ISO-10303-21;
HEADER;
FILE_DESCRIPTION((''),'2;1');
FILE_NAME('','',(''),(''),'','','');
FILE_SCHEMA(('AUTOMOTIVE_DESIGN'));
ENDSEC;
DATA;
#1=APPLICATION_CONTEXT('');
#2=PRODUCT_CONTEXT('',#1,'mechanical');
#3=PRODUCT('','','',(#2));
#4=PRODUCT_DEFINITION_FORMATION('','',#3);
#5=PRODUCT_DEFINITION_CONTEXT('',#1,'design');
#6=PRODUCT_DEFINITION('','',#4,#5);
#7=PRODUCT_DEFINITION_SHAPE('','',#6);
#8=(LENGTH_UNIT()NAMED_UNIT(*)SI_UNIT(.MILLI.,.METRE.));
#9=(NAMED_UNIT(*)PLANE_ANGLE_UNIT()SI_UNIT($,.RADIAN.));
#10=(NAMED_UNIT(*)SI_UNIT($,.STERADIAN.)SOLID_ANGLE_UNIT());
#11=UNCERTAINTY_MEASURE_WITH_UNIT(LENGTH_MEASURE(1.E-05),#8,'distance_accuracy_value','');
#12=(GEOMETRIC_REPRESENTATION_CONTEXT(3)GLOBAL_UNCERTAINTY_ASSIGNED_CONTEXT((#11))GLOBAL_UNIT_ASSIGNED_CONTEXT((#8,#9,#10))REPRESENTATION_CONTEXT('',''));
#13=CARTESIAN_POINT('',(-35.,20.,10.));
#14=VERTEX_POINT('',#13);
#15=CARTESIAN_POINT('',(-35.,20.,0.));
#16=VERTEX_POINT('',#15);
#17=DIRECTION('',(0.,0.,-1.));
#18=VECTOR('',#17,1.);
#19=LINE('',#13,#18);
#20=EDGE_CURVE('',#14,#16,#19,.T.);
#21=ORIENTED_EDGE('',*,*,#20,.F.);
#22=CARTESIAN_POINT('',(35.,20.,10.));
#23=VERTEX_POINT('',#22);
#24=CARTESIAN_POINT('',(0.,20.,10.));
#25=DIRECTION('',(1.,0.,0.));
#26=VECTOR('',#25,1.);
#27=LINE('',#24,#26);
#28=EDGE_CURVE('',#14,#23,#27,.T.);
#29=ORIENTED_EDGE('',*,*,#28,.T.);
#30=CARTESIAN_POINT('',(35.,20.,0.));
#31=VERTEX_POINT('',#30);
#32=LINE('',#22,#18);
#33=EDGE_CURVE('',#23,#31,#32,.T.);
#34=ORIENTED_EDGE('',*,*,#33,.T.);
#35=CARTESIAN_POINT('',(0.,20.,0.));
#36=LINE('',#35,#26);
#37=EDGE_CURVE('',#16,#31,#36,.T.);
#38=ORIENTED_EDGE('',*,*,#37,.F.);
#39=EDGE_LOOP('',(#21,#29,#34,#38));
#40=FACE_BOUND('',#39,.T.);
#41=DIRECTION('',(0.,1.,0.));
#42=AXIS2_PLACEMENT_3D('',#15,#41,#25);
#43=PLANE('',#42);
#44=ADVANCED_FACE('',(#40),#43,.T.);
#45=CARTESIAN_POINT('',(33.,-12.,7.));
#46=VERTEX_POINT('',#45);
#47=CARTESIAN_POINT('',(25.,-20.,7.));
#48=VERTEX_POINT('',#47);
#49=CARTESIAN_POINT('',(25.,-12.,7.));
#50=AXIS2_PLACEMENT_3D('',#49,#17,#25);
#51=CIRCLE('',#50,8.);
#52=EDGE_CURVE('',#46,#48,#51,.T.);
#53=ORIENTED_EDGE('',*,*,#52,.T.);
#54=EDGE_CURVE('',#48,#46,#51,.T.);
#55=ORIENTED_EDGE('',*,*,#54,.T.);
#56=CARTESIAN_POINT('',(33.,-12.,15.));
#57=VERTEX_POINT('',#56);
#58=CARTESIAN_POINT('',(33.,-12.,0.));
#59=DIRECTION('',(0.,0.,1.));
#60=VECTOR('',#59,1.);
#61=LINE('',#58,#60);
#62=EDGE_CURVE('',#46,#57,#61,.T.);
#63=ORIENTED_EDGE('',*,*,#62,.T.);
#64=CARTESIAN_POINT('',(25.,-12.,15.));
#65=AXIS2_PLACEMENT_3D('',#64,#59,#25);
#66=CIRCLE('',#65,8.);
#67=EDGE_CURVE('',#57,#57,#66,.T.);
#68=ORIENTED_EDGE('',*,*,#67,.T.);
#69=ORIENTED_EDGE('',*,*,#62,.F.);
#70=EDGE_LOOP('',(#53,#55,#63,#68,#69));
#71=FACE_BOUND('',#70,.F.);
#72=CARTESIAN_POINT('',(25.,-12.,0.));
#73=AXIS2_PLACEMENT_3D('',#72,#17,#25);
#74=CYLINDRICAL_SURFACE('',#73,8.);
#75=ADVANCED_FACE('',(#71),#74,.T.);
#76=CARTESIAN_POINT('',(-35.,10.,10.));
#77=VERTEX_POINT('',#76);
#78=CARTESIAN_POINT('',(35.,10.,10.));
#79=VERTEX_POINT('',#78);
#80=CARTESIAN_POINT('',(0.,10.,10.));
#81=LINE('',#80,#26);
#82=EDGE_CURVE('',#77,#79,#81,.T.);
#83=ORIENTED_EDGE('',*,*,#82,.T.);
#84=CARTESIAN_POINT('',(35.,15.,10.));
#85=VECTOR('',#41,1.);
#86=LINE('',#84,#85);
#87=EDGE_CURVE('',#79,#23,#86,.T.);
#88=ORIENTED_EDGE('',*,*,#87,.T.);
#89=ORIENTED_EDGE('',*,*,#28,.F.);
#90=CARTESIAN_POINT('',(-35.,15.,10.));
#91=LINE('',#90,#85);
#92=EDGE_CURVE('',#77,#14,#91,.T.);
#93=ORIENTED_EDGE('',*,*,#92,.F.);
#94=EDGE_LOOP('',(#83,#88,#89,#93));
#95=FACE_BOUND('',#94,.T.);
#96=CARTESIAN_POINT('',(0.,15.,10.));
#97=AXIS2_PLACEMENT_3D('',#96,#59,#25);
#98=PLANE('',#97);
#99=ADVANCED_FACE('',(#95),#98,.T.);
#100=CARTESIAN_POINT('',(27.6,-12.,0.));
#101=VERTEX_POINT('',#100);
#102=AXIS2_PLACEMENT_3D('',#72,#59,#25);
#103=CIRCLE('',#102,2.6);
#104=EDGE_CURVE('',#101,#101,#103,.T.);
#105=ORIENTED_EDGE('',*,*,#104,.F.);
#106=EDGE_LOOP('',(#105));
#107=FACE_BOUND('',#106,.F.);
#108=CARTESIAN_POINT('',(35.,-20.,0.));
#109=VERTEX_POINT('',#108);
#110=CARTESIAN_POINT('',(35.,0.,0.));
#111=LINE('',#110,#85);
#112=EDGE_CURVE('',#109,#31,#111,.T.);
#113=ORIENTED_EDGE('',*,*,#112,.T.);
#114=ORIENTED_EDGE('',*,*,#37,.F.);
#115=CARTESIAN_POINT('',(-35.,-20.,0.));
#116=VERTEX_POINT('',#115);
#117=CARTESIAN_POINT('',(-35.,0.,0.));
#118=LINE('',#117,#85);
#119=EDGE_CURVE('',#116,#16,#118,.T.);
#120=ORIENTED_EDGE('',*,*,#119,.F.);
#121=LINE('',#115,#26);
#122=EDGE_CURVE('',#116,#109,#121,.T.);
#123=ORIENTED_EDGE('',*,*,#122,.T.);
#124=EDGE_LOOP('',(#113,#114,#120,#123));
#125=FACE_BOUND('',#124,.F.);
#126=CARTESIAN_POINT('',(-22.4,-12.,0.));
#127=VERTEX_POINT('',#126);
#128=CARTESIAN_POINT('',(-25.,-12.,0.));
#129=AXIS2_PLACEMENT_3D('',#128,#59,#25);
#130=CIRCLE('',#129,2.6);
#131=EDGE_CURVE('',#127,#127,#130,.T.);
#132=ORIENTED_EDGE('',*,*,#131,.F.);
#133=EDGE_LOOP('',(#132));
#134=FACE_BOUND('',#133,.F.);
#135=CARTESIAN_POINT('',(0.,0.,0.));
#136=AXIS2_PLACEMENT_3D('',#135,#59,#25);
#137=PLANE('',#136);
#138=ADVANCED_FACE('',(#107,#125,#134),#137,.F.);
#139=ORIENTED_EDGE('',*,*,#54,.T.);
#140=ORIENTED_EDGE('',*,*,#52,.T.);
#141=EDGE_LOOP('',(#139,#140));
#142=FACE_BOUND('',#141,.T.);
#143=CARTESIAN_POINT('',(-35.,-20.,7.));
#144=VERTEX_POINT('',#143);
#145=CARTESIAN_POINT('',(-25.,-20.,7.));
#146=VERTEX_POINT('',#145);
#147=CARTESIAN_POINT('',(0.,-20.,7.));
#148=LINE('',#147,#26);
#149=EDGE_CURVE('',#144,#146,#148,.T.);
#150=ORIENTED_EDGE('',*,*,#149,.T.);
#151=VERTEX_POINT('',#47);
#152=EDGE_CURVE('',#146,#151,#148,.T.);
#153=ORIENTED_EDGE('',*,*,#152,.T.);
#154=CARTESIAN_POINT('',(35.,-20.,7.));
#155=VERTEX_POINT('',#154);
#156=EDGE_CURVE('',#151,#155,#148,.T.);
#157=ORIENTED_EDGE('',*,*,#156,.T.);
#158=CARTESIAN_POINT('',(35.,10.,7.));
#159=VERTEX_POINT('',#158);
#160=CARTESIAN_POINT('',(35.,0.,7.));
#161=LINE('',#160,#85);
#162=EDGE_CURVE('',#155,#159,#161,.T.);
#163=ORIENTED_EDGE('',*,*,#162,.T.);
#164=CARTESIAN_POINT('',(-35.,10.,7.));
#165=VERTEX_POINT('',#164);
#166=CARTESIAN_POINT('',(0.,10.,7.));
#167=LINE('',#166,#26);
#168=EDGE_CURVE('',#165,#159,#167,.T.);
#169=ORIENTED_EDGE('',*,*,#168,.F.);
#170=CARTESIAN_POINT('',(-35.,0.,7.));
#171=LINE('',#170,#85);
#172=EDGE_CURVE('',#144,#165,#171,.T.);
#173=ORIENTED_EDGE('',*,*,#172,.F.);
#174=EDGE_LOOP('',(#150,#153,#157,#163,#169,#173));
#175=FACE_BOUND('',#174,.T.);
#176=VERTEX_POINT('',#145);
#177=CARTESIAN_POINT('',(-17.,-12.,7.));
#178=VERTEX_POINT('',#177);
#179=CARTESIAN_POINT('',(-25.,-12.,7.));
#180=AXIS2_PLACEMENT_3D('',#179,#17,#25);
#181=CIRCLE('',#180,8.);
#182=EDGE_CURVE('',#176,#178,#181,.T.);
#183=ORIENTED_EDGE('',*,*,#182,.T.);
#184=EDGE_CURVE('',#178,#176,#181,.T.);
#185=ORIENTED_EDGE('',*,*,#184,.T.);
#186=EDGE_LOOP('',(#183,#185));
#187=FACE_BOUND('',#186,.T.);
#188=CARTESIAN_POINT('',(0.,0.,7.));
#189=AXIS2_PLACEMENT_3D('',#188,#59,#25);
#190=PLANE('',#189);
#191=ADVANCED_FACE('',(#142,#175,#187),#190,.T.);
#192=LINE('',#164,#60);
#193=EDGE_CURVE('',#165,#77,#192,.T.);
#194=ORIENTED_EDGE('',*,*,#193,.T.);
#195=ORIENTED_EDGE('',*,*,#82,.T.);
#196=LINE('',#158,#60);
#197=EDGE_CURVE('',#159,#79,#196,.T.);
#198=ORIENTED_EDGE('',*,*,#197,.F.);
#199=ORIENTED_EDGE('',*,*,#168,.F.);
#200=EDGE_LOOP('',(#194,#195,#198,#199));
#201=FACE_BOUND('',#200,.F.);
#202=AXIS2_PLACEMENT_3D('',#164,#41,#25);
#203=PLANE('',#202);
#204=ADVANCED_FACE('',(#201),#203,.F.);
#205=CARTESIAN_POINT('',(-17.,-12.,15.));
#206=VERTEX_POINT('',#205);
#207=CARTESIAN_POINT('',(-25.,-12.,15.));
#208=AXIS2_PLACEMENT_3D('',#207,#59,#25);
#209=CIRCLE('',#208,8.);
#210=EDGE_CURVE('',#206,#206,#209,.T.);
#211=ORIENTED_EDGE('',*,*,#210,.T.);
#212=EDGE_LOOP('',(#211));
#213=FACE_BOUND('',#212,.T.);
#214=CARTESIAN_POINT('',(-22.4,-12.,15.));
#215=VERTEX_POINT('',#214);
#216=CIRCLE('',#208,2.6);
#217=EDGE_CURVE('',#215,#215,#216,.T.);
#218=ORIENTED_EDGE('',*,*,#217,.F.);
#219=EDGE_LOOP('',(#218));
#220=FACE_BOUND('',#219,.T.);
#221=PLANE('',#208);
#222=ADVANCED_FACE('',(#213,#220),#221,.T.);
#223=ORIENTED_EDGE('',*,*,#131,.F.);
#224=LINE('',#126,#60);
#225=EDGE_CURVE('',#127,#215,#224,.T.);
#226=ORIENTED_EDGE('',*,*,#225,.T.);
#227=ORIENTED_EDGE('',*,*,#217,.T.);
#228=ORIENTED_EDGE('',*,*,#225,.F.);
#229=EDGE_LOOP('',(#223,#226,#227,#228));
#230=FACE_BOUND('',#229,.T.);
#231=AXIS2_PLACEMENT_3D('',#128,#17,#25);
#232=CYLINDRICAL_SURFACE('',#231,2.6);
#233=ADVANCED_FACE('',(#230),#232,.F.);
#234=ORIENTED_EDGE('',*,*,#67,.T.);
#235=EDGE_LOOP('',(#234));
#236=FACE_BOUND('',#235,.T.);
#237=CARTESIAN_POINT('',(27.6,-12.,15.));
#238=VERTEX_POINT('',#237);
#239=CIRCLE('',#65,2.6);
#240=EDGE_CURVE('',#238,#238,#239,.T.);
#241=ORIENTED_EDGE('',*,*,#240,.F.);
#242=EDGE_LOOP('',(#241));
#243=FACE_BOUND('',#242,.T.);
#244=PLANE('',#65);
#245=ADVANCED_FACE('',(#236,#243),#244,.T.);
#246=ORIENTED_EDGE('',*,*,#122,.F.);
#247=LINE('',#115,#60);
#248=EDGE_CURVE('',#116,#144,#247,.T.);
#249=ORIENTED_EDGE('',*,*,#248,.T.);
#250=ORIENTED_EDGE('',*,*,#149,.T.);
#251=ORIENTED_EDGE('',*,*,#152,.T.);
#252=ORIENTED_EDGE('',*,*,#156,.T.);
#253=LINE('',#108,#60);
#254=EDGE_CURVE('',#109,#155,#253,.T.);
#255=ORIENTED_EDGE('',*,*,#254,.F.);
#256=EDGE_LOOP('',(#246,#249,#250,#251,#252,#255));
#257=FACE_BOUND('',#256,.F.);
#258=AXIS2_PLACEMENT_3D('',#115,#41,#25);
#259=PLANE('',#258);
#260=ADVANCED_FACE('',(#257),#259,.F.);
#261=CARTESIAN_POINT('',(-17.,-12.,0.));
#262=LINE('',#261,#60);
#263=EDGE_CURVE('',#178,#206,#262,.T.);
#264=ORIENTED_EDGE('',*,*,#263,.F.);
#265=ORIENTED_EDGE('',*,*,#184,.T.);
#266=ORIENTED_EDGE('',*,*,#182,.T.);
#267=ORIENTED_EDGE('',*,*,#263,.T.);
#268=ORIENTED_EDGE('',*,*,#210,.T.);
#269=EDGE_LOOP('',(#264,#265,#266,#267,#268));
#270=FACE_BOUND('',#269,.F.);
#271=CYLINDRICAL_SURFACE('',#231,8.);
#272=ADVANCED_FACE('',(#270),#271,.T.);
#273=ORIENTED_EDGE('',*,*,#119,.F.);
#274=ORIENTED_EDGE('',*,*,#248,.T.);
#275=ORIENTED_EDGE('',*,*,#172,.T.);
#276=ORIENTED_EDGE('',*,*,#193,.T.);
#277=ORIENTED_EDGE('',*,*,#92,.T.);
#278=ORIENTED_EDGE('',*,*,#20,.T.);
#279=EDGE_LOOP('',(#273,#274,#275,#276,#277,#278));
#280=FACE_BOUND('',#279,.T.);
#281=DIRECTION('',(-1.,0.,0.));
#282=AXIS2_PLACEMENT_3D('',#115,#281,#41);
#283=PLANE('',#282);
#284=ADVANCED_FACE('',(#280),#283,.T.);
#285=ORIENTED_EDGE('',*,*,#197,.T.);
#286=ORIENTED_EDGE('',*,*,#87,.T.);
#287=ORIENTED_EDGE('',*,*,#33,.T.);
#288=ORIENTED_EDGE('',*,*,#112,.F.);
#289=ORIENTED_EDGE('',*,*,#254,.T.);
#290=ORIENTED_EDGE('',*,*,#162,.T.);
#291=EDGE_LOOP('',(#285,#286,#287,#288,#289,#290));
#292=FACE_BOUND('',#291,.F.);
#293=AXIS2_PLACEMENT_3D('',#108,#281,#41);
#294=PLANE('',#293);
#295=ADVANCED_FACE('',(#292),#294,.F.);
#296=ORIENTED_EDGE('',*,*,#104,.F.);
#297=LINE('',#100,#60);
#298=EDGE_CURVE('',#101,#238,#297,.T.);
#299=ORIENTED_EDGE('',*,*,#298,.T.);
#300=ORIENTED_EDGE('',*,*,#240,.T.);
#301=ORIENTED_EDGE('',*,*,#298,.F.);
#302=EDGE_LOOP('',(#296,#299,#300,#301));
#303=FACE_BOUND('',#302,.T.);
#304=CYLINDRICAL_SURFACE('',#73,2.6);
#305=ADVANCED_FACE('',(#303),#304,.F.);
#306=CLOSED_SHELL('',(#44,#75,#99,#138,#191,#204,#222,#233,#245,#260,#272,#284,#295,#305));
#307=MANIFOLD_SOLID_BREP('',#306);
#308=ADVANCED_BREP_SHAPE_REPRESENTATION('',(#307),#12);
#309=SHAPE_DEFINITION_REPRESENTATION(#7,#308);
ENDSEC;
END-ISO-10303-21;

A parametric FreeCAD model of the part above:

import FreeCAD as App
import Part
import Sketcher

V = App.Vector
Q = App.Units.Quantity

doc = App.newDocument("Part")
body = doc.addObject("PartDesign::Body", "Body")
body.AllowCompound = True

# Sketch on XY plane
sketch1 = doc.addObject("Sketcher::SketchObject", "Sketch")
body.addObject(sketch1)
sketch1.AttachmentSupport = (doc.XY_Plane, [""])
sketch1.MapMode = "FlatFace"
sketch1.addGeometry([
    Part.Circle(V(-25, -12, 0), V(0, 0, 1), 8),
    Part.Circle(V(-25, -12, 0), V(0, 0, 1), 2.6),
    Part.Circle(V(25, -12, 0), V(0, 0, 1), 8),
    Part.Circle(V(25, -12, 0), V(0, 0, 1), 2.6),
], False)
sketch1.addConstraint([
    Sketcher.Constraint("Coincident", 1, 3, 0, 3),
    Sketcher.Constraint("Coincident", 3, 3, 2, 3),
    Sketcher.Constraint("Equal", 0, 2),
    Sketcher.Constraint("Equal", 1, 3),
    Sketcher.Constraint("Symmetric", 0, 3, 2, 3, -2),
    Sketcher.Constraint("Diameter", 0, Q("16 mm")),
    Sketcher.Constraint("Diameter", 1, Q("5.2 mm")),
    Sketcher.Constraint("DistanceX", 0, 3, -1, 1, Q("25 mm")),
    Sketcher.Constraint("DistanceY", 0, 3, -1, 1, Q("12 mm")),
])
pad1 = doc.addObject("PartDesign::Pad", "Pad")
body.addObject(pad1)
pad1.Profile = sketch1
pad1.Length = 15
body2 = doc.addObject("PartDesign::Body", "Body001")

# Sketch on XY plane
sketch2 = doc.addObject("Sketcher::SketchObject", "Sketch001")
body2.addObject(sketch2)
sketch2.AttachmentSupport = (doc.getObject("XY_Plane001"), [""])
sketch2.MapMode = "FlatFace"
sketch2.addGeometry([
    Part.LineSegment(V(-35, 20, 0), V(-35, -20, 0)),  # 0
    Part.LineSegment(V(-35, -20, 0), V(35, -20, 0)),  # 1
    Part.LineSegment(V(35, -20, 0), V(35, 20, 0)),  # 2
    Part.LineSegment(V(35, 20, 0), V(-35, 20, 0)),  # 3
    Part.Circle(V(-25, -12, 0), V(0, 0, 1), 6),  # 4
    Part.Circle(V(25, -12, 0), V(0, 0, 1), 6),  # 5
], False)
sketch2.addConstraint([
    Sketcher.Constraint("Coincident", 0, 2, 1, 1),
    Sketcher.Constraint("Coincident", 1, 2, 2, 1),
    Sketcher.Constraint("Coincident", 2, 2, 3, 1),
    Sketcher.Constraint("Coincident", 3, 2, 0, 1),
    Sketcher.Constraint("Vertical", 0),
    Sketcher.Constraint("Horizontal", 1),
    Sketcher.Constraint("Vertical", 2),
    Sketcher.Constraint("Horizontal", 3),
    Sketcher.Constraint("Equal", 4, 5),
    Sketcher.Constraint("Symmetric", 0, 2, 2, 2, -1, 1),
    Sketcher.Constraint("Symmetric", 4, 3, 5, 3, -2),
    Sketcher.Constraint("Diameter", 4, Q("12 mm")),
    Sketcher.Constraint("DistanceX", 1, 1, 1, 2, Q("70 mm")),
    Sketcher.Constraint("DistanceY", 0, 2, 0, 1, Q("40 mm")),
    Sketcher.Constraint("DistanceX", 4, 3, -1, 1, Q("25 mm")),
    Sketcher.Constraint("DistanceY", 4, 3, -1, 1, Q("12 mm")),
])
pad2 = doc.addObject("PartDesign::Pad", "Pad001")
body2.addObject(pad2)
pad2.Profile = sketch2
pad2.Length = 7
body3 = doc.addObject("PartDesign::Body", "Body002")

# Sketch on XY plane
sketch3 = doc.addObject("Sketcher::SketchObject", "Sketch002")
body3.addObject(sketch3)
sketch3.AttachmentSupport = (doc.getObject("XY_Plane002"), [""])
sketch3.MapMode = "FlatFace"
sketch3.addGeometry([
    Part.LineSegment(V(-35, 20, 0), V(-35, 10, 0)),
    Part.LineSegment(V(-35, 10, 0), V(35, 10, 0)),
    Part.LineSegment(V(35, 10, 0), V(35, 20, 0)),
    Part.LineSegment(V(35, 20, 0), V(-35, 20, 0)),
], False)
sketch3.addConstraint([
    Sketcher.Constraint("Coincident", 0, 2, 1, 1),
    Sketcher.Constraint("Coincident", 1, 2, 2, 1),
    Sketcher.Constraint("Coincident", 2, 2, 3, 1),
    Sketcher.Constraint("Coincident", 3, 2, 0, 1),
    Sketcher.Constraint("Vertical", 0),
    Sketcher.Constraint("Horizontal", 1),
    Sketcher.Constraint("Vertical", 2),
    Sketcher.Constraint("Horizontal", 3),
    Sketcher.Constraint("DistanceX", 1, 1, 1, 2, Q("70 mm")),
    Sketcher.Constraint("DistanceY", 0, 2, 0, 1, Q("10 mm")),
    Sketcher.Constraint("DistanceX", 0, 2, -1, 1, Q("35 mm")),
    Sketcher.Constraint("DistanceY", -1, 1, 0, 2, Q("10 mm")),
])
pad3 = doc.addObject("PartDesign::Pad", "Pad002")
body3.addObject(pad3)
pad3.Profile = sketch3
pad3.Length = 3
body4 = doc.addObject("PartDesign::Body", "Body003")
body4.AllowCompound = True
doc.recompute()

body3.Placement = App.Placement(V(0, 0, 7), App.Rotation(V(0, 0, 1), 0))
boolean = doc.addObject("PartDesign::Boolean", "Boolean")
body4.addObject(boolean)
boolean.Type = "Fuse"
boolean.addObjects([body3])
doc.recompute()

boolean2 = doc.addObject("PartDesign::Boolean", "Boolean001")
body4.addObject(boolean2)
boolean2.Type = "Fuse"
boolean2.addObjects([body])
doc.recompute()

boolean3 = doc.addObject("PartDesign::Boolean", "Boolean002")
body4.addObject(boolean3)
boolean3.Type = "Fuse"
boolean3.addObjects([body2])

doc.recompute()
